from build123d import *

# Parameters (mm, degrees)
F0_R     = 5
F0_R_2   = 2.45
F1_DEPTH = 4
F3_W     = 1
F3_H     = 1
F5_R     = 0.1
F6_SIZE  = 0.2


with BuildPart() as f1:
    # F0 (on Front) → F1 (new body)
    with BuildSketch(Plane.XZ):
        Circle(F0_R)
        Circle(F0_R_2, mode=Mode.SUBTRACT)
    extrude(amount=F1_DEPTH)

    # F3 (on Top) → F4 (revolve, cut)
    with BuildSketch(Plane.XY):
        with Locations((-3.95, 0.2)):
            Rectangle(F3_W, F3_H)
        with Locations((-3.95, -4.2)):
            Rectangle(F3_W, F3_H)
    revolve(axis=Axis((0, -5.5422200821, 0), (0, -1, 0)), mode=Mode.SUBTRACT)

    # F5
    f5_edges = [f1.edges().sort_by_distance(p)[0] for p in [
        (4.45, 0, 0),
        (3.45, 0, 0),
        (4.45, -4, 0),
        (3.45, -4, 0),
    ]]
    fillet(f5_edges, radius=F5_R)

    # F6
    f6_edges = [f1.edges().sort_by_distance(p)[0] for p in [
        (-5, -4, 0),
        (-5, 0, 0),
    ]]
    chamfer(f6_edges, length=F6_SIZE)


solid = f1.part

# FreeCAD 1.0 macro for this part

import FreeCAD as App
import Part
import Sketcher


def edges_at(feature, points):
    """Names of the edges that pass closest to the given points."""
    edges = feature.Shape.Edges
    near = lambda p: min(range(len(edges)), key=lambda i: edges[i].distToShape(Part.Vertex(*p))[0])
    return sorted({f"Edge{near(p) + 1}" for p in points})


def add_polygon(sketch, points):
    """Adds a closed chain of lines whose ends are joined by coincident constraints."""
    first, n = sketch.GeometryCount, len(points)
    for a, b in zip(points, points[1:] + points[:1]):
        sketch.addGeometry(Part.LineSegment(App.Vector(*a, 0), App.Vector(*b, 0)), False)
    for i in range(n):
        sketch.addConstraint(Sketcher.Constraint("Coincident", first + i, 2, first + (i + 1) % n, 1))

doc = App.newDocument("Part")
body = doc.addObject("PartDesign::Body", "Body")

# Sketch on XZ plane
sketch1 = doc.addObject("Sketcher::SketchObject", "Sketch")
body.addObject(sketch1)
sketch1.AttachmentSupport = (doc.XZ_Plane, [""])
sketch1.MapMode = "FlatFace"
sketch1.addGeometry(Part.Circle(App.Vector(0, 0, 0), App.Vector(0, 0, 1), 5), False)
sketch1.addGeometry(Part.Circle(App.Vector(0, 0, 0), App.Vector(0, 0, 1), 2.45), False)
sketch1.addConstraint(Sketcher.Constraint("Coincident", 0, 3, -1, 1))
sketch1.addConstraint(Sketcher.Constraint("Coincident", 1, 3, -1, 1))
sketch1.addConstraint(Sketcher.Constraint("Diameter", 0, 10.0))
sketch1.addConstraint(Sketcher.Constraint("Diameter", 1, 4.9))
pad1 = doc.addObject("PartDesign::Pad", "Pad")
body.addObject(pad1)
pad1.Profile = sketch1
pad1.Length = 4

# Sketch on XY plane
sketch2 = doc.addObject("Sketcher::SketchObject", "Sketch001")
body.addObject(sketch2)
sketch2.AttachmentSupport = (doc.XY_Plane, [""])
sketch2.MapMode = "FlatFace"
add_polygon(sketch2, [(-4.45, 0.7), (-4.45, -0.3), (-3.45, -0.3), (-3.45, 0.7)])  # lines 0-3
add_polygon(sketch2, [(-4.45, -3.7), (-4.45, -4.7), (-3.45, -4.7), (-3.45, -3.7)])  # lines 4-7
sketch2.addConstraint(Sketcher.Constraint("Vertical", 0))
sketch2.addConstraint(Sketcher.Constraint("Horizontal", 1))
sketch2.addConstraint(Sketcher.Constraint("Vertical", 2))
sketch2.addConstraint(Sketcher.Constraint("Horizontal", 3))
sketch2.addConstraint(Sketcher.Constraint("Vertical", 4))
sketch2.addConstraint(Sketcher.Constraint("Horizontal", 5))
sketch2.addConstraint(Sketcher.Constraint("Vertical", 6))
sketch2.addConstraint(Sketcher.Constraint("Horizontal", 7))
sketch2.addConstraint(Sketcher.Constraint("Vertical", 3, 2, 4, 2))
sketch2.addConstraint(Sketcher.Constraint("Vertical", 2, 2, 5, 2))
sketch2.addConstraint(Sketcher.Constraint("Equal", 7, 0))
sketch2.addConstraint(Sketcher.Constraint("Equal", 2, 4))
sketch2.addConstraint(Sketcher.Constraint("DistanceX", 1, 1, 1, 2, 1.0))
sketch2.addConstraint(Sketcher.Constraint("DistanceY", 0, 2, -1, 1, 0.3))
sketch2.addConstraint(Sketcher.Constraint("DistanceY", 4, 2, -1, 1, 4.7))
sketch2.addConstraint(Sketcher.Constraint("DistanceX", 0, 2, -1, 1, 4.45))
groove = doc.addObject("PartDesign::Groove", "Groove")
body.addObject(groove)
groove.Profile = sketch2
groove.ReferenceAxis = (sketch2, ["V_Axis"])
groove.Angle = 360
doc.recompute()

fillet = doc.addObject("PartDesign::Fillet", "Fillet")
body.addObject(fillet)
fillet.Base = (groove, edges_at(groove, [
    (4.45, 0, 0),
    (3.45, 0, 0),
    (4.45, -4, 0),
    (3.45, -4, 0),
]))
fillet.Radius = 0.1
doc.recompute()

chamfer = doc.addObject("PartDesign::Chamfer", "Chamfer")
body.addObject(chamfer)
chamfer.Base = (fillet, edges_at(fillet, [(-5, -4, 0), (-5, 0, 0)]))
chamfer.Size = 0.2

doc.recompute()
